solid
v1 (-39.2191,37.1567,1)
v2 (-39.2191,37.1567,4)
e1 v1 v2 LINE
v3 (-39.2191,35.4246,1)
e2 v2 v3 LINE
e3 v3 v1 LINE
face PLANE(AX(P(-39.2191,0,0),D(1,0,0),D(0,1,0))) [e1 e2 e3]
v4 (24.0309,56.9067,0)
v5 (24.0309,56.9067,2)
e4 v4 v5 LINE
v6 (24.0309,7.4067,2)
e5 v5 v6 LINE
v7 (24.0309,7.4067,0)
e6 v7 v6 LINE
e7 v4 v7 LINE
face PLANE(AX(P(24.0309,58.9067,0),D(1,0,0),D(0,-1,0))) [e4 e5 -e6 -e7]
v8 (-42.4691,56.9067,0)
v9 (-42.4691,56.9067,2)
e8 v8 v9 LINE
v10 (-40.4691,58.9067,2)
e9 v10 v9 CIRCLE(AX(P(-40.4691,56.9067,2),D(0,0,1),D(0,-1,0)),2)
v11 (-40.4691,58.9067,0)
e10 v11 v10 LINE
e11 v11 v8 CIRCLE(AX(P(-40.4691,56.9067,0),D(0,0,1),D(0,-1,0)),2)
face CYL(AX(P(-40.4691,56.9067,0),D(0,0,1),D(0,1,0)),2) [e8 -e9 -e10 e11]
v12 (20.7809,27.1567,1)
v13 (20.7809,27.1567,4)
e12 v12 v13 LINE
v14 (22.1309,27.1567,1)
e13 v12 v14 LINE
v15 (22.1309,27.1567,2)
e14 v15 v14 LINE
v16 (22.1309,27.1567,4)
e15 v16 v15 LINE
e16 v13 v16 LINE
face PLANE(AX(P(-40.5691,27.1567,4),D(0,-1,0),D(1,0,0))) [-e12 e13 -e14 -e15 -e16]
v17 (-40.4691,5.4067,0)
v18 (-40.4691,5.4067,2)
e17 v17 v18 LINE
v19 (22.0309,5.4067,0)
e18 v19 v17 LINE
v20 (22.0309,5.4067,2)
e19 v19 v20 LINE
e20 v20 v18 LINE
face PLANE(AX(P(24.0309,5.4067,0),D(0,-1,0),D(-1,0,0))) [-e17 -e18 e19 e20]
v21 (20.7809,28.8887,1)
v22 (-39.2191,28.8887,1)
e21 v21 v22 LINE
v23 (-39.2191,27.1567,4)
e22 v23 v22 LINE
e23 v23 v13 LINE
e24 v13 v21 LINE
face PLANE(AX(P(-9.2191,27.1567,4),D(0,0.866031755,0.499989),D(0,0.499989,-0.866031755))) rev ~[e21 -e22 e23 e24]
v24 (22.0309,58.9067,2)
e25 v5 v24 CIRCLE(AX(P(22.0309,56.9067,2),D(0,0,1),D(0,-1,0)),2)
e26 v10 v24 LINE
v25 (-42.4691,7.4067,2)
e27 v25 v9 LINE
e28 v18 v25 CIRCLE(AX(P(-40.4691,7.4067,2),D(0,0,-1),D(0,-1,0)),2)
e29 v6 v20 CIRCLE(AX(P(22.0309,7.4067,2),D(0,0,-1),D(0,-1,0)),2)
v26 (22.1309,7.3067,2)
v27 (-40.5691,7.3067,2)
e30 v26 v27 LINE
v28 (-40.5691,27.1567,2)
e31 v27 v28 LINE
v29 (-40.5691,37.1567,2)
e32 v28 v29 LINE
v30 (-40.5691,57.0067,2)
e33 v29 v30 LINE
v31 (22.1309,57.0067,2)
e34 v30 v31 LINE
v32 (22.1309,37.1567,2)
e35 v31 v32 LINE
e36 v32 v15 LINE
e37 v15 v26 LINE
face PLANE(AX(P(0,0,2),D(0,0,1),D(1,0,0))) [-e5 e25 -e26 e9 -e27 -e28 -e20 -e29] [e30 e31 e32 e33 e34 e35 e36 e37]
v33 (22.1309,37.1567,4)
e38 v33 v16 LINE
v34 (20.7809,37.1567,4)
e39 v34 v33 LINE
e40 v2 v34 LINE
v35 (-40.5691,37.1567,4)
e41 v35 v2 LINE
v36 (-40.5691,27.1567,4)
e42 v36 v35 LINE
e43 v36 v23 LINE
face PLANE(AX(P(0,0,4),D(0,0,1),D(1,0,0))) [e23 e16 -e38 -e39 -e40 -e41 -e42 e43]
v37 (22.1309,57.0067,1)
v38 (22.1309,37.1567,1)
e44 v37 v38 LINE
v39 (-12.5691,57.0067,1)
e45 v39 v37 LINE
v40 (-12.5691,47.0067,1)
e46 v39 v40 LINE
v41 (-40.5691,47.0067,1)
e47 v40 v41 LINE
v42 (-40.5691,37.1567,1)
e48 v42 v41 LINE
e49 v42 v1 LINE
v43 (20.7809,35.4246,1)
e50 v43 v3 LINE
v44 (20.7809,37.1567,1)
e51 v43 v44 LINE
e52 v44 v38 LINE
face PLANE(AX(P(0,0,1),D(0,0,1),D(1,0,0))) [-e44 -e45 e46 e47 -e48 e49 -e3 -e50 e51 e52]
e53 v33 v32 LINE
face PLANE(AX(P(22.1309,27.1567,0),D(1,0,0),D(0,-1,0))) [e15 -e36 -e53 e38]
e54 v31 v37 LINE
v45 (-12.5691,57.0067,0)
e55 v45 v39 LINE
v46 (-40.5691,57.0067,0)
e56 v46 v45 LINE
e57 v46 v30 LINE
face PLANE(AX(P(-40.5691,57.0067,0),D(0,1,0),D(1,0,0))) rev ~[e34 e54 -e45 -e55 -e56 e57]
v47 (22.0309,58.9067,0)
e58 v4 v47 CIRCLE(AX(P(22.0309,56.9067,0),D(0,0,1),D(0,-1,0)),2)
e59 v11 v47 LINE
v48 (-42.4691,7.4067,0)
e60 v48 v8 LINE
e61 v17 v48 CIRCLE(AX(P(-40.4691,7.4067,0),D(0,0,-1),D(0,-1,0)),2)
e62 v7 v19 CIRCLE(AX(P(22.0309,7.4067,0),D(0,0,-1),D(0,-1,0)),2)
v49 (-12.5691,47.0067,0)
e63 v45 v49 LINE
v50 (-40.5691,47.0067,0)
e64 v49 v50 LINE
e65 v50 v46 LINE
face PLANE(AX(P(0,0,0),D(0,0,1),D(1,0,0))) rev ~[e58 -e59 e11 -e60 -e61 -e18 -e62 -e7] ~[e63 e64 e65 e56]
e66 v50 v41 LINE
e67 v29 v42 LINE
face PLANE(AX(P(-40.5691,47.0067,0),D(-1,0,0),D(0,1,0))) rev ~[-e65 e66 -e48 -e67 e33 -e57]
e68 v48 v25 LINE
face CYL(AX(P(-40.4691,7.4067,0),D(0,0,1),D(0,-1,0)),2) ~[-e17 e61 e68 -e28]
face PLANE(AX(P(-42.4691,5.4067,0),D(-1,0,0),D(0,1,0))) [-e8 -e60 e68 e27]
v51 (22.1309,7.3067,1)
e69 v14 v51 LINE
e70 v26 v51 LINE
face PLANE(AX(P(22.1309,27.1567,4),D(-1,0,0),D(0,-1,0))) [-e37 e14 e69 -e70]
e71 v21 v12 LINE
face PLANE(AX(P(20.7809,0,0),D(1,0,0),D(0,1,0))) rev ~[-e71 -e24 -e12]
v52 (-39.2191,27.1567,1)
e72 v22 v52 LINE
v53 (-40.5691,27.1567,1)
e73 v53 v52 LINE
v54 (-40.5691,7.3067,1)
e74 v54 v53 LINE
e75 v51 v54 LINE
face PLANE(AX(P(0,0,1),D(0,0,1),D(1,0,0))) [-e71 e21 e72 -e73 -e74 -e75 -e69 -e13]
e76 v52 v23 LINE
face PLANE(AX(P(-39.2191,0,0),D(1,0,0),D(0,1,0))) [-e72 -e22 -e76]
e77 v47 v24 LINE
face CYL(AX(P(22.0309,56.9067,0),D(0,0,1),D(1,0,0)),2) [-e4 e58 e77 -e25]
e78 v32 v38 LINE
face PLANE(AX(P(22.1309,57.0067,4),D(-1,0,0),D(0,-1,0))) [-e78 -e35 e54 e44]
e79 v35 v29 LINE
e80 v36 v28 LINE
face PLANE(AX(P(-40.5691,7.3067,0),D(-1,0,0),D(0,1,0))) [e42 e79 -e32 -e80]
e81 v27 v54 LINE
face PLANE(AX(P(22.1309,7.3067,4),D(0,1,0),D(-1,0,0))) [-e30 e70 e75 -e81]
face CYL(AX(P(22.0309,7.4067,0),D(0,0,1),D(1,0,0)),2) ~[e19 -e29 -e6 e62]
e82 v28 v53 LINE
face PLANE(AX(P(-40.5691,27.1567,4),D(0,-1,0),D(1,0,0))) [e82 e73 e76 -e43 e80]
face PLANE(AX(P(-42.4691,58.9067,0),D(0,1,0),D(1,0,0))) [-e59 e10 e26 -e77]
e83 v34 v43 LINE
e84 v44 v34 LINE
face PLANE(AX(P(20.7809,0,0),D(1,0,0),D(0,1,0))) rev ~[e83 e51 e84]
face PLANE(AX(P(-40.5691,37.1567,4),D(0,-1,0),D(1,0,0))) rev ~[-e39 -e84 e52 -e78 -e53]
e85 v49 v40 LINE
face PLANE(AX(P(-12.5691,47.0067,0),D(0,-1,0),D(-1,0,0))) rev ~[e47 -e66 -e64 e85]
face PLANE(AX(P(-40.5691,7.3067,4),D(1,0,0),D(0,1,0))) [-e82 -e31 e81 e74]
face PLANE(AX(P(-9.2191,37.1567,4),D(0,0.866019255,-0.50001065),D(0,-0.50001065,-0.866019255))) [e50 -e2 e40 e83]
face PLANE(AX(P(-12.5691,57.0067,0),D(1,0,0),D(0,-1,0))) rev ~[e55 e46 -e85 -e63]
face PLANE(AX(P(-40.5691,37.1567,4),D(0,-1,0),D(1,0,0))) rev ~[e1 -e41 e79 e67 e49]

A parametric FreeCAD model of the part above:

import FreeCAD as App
import Part
import Sketcher

V = App.Vector
Q = App.Units.Quantity


def edges_at(feature, points):
    """Names of the edges that pass closest to the given points."""
    edges = feature.Shape.Edges
    near = lambda p: min(range(len(edges)), key=lambda i: edges[i].distToShape(Part.Vertex(*p))[0])
    return sorted({f"Edge{near(p) + 1}" for p in points})


def add_polygon(sketch, points):
    """Adds a closed chain of lines whose ends are joined by coincident constraints."""
    first, n = sketch.GeometryCount, len(points)
    for a, b in zip(points, points[1:] + points[:1]):
        sketch.addGeometry(Part.LineSegment(App.Vector(*a, 0), App.Vector(*b, 0)), False)
    for i in range(n):
        sketch.addConstraint(Sketcher.Constraint("Coincident", first + i, 2, first + (i + 1) % n, 1))

doc = App.newDocument("Part")
body = doc.addObject("PartDesign::Body", "Body")

sketch1 = body.newObject("Sketcher::SketchObject", "Sketch")
sketch1.AttachmentSupport = (doc.getObject("XY_Plane"), [""])
sketch1.MapMode = "FlatFace"
add_polygon(sketch1, [(-40.5691, 7.3067), (22.1309, 7.3067), (22.1309, 57.0067), (-12.5691, 57.0067), (-12.5691, 47.0067), (-40.5691, 47.0067)])
sketch1.addConstraint(Sketcher.Constraint("Horizontal", 0))
sketch1.addConstraint(Sketcher.Constraint("Vertical", 1))
sketch1.addConstraint(Sketcher.Constraint("Horizontal", 2))
sketch1.addConstraint(Sketcher.Constraint("Vertical", 3))
sketch1.addConstraint(Sketcher.Constraint("Horizontal", 4))
sketch1.addConstraint(Sketcher.Constraint("Vertical", 5))
sketch1.addConstraint(Sketcher.Constraint("DistanceX", 4, 2, 4, 1, Q("28 mm")))
sketch1.addConstraint(Sketcher.Constraint("DistanceY", 3, 2, 3, 1, Q("10 mm")))
sketch1.addConstraint(Sketcher.Constraint("DistanceX", 0, 1, 0, 2, Q("62.7 mm")))
sketch1.addConstraint(Sketcher.Constraint("DistanceY", 1, 1, 1, 2, Q("49.7 mm")))
sketch1.addConstraint(Sketcher.Constraint("DistanceX", -1, 1, 0, 2, Q("22.131 mm")))
sketch1.addConstraint(Sketcher.Constraint("DistanceY", -1, 1, 0, 2, Q("7.3067 mm")))
pad1 = body.newObject("PartDesign::Pad", "Pad")
pad1.Profile = sketch1
pad1.Length = 4

sketch2 = body.newObject("Sketcher::SketchObject", "Sketch001")
sketch2.AttachmentSupport = (doc.getObject("XY_Plane"), [""])
sketch2.MapMode = "FlatFace"
add_polygon(sketch2, [(24.0309, 5.4067), (24.0309, 58.9067), (-42.4691, 58.9067), (-42.4691, 5.4067)])
add_polygon(sketch2, [(22.1309, 57.0067), (22.1309, 7.3067), (-40.5691, 7.3067), (-40.5691, 57.0067)])
sketch2.addConstraint(Sketcher.Constraint("Vertical", 0))
sketch2.addConstraint(Sketcher.Constraint("Horizontal", 1))
sketch2.addConstraint(Sketcher.Constraint("Vertical", 2))
sketch2.addConstraint(Sketcher.Constraint("Horizontal", 3))
sketch2.addConstraint(Sketcher.Constraint("Vertical", 4))
sketch2.addConstraint(Sketcher.Constraint("Horizontal", 5))
sketch2.addConstraint(Sketcher.Constraint("Vertical", 6))
sketch2.addConstraint(Sketcher.Constraint("Horizontal", 7))
sketch2.addConstraint(Sketcher.Constraint("DistanceX", 1, 2, 1, 1, Q("66.5 mm")))
sketch2.addConstraint(Sketcher.Constraint("DistanceX", 5, 2, 5, 1, Q("62.7 mm")))
sketch2.addConstraint(Sketcher.Constraint("DistanceY", 0, 1, 0, 2, Q("53.5 mm")))
sketch2.addConstraint(Sketcher.Constraint("DistanceY", 4, 2, 4, 1, Q("49.7 mm")))
sketch2.addConstraint(Sketcher.Constraint("DistanceX", 4, 2, 3, 2, Q("1.9 mm")))
sketch2.addConstraint(Sketcher.Constraint("DistanceY", 3, 2, 4, 2, Q("1.9 mm")))
sketch2.addConstraint(Sketcher.Constraint("DistanceX", -1, 1, 0, 2, Q("24.031 mm")))
sketch2.addConstraint(Sketcher.Constraint("DistanceY", -1, 1, 0, 2, Q("58.9067 mm")))
pad2 = body.newObject("PartDesign::Pad", "Pad001")
pad2.Profile = sketch2
pad2.Length = 2
doc.recompute()

fillet = body.newObject("PartDesign::Fillet", "Fillet")
fillet.Base = (pad2, edges_at(pad2, [
    (-42.469, 5.407, 1),
    (24.031, 5.407, 1),
    (24.031, 58.907, 1),
    (-42.469, 58.907, 1),
]))
fillet.Radius = 2

sketch3 = body.newObject("Sketcher::SketchObject", "Sketch002")
sketch3.AttachmentSupport = (doc.getObject("XY_Plane"), [""])
sketch3.MapMode = "FlatFace"
sketch3.AttachmentOffset = App.Placement(V(0, 0, 4), App.Rotation())
add_polygon(sketch3, [(-40.5691, 7.3067), (22.1309, 7.3067), (22.1309, 27.1567), (-40.5691, 27.1567)])
add_polygon(sketch3, [(-40.5691, 37.1567), (22.1309, 37.1567), (22.1309, 57.0067), (-12.5691, 57.0067), (-12.5691, 47.0067), (-40.5691, 47.0067)])
sketch3.addConstraint(Sketcher.Constraint("Horizontal", 0))
sketch3.addConstraint(Sketcher.Constraint("Vertical", 1))
sketch3.addConstraint(Sketcher.Constraint("Horizontal", 2))
sketch3.addConstraint(Sketcher.Constraint("Vertical", 3))
sketch3.addConstraint(Sketcher.Constraint("Horizontal", 4))
sketch3.addConstraint(Sketcher.Constraint("Vertical", 5))
sketch3.addConstraint(Sketcher.Constraint("Horizontal", 6))
sketch3.addConstraint(Sketcher.Constraint("Vertical", 7))
sketch3.addConstraint(Sketcher.Constraint("Horizontal", 8))
sketch3.addConstraint(Sketcher.Constraint("Vertical", 9))
sketch3.addConstraint(Sketcher.Constraint("Vertical", 1, 2, 4, 2))
sketch3.addConstraint(Sketcher.Constraint("Vertical", 3, 2, 8, 2))
sketch3.addConstraint(Sketcher.Constraint("Equal", 3, 5))
sketch3.addConstraint(Sketcher.Constraint("DistanceX", 8, 2, 8, 1, Q("28 mm")))
sketch3.addConstraint(Sketcher.Constraint("DistanceY", 7, 2, 7, 1, Q("10 mm")))
sketch3.addConstraint(Sketcher.Constraint("DistanceY", 1, 2, 4, 2, Q("10 mm")))
sketch3.addConstraint(Sketcher.Constraint("DistanceX", 0, 1, 0, 2, Q("62.7 mm")))
sketch3.addConstraint(Sketcher.Constraint("DistanceY", 1, 1, 1, 2, Q("19.85 mm")))
sketch3.addConstraint(Sketcher.Constraint("DistanceX", -1, 1, 0, 2, Q("22.131 mm")))
sketch3.addConstraint(Sketcher.Constraint("DistanceY", -1, 1, 0, 2, Q("7.3067 mm")))
pocket1 = body.newObject("PartDesign::Pocket", "Pocket")
pocket1.Profile = sketch3
pocket1.Length = 3

sketch4 = body.newObject("Sketcher::SketchObject", "Sketch003")
sketch4.AttachmentSupport = (doc.getObject("YZ_Plane"), [""])
sketch4.MapMode = "FlatFace"
sketch4.AttachmentOffset = App.Placement(V(0, 0, -9.2191), App.Rotation())
add_polygon(sketch4, [(28.8887, 1), (27.1567, 4), (27.1567, 1)])
add_polygon(sketch4, [(37.1567, 1), (37.1567, 4), (35.4246, 1)])
sketch4.addConstraint(Sketcher.Constraint("Vertical", 1))
sketch4.addConstraint(Sketcher.Constraint("Horizontal", 2))
sketch4.addConstraint(Sketcher.Constraint("Vertical", 3))
sketch4.addConstraint(Sketcher.Constraint("Horizontal", 5))
sketch4.addConstraint(Sketcher.Constraint("Horizontal", 0, 2, 3, 2))
sketch4.addConstraint(Sketcher.Constraint("Horizontal", 2, 2, 4, 2))
sketch4.addConstraint(Sketcher.Constraint("Equal", 2, 5))
sketch4.addConstraint(Sketcher.Constraint("DistanceY", 1, 2, 1, 1, Q("3 mm")))
sketch4.addConstraint(Sketcher.Constraint("Angle", 0, Q("119.9993 deg")))
sketch4.addConstraint(Sketcher.Constraint("DistanceY", -1, 1, 0, 2, Q("4 mm")))
sketch4.addConstraint(Sketcher.Constraint("DistanceX", 0, 2, 3, 2, Q("10 mm")))
sketch4.addConstraint(Sketcher.Constraint("DistanceX", -1, 1, 0, 2, Q("27.1567 mm")))
pocket2 = body.newObject("PartDesign::Pocket", "Pocket001")
pocket2.Profile = sketch4
pocket2.Length = 60
pocket2.Midplane = True

doc.recompute()
